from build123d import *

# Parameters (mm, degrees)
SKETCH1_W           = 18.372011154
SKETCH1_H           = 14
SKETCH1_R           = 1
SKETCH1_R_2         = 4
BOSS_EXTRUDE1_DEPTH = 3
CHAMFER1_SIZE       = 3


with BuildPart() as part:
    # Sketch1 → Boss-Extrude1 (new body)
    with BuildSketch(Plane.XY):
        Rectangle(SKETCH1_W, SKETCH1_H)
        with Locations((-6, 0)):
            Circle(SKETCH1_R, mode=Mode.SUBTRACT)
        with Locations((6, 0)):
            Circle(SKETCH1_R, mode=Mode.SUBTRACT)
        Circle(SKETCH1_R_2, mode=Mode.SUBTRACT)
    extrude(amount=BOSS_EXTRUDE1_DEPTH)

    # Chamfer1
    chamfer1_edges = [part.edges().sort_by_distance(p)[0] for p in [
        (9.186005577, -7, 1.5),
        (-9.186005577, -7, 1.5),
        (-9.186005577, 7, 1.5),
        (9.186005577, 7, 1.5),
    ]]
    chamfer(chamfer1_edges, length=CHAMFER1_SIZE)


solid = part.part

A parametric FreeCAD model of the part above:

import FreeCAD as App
import Part
import Sketcher

V = App.Vector
Q = App.Units.Quantity


def edges_at(feature, points):
    """Names of the edges that pass closest to the given points."""
    edges = feature.Shape.Edges
    near = lambda p: min(range(len(edges)), key=lambda i: edges[i].distToShape(Part.Vertex(*p))[0])
    return sorted({f"Edge{near(p) + 1}" for p in points})


def add_polygon(sketch, points):
    """Adds a closed chain of lines whose ends are joined by coincident constraints."""
    first, n = sketch.GeometryCount, len(points)
    for a, b in zip(points, points[1:] + points[:1]):
        sketch.addGeometry(Part.LineSegment(App.Vector(*a, 0), App.Vector(*b, 0)), False)
    for i in range(n):
        sketch.addConstraint(Sketcher.Constraint("Coincident", first + i, 2, first + (i + 1) % n, 1))

doc = App.newDocument("Part")
body = doc.addObject("PartDesign::Body", "Body")

sketch1 = body.newObject("Sketcher::SketchObject", "Sketch")
sketch1.AttachmentSupport = (doc.getObject("XY_Plane"), [""])
sketch1.MapMode = "FlatFace"
add_polygon(sketch1, [(-9.2, 7), (-9.2, -7), (9.2, -7), (9.2, 7)])
sketch1.addGeometry(Part.Circle(V(-6, 0, 0), V(0, 0, 1), 1), False)
sketch1.addGeometry(Part.Circle(V(0, 0, 0), V(0, 0, 1), 4), False)
sketch1.addGeometry(Part.Circle(V(6, 0, 0), V(0, 0, 1), 1), False)
sketch1.addConstraint([
    Sketcher.Constraint("Vertical", 0),
    Sketcher.Constraint("Horizontal", 1),
    Sketcher.Constraint("Vertical", 2),
    Sketcher.Constraint("Horizontal", 3),
    Sketcher.Constraint("Coincident", 5, 3, -1, 1),
    Sketcher.Constraint("Equal", 4, 6),
    Sketcher.Constraint("Symmetric", 4, 3, 6, 3, -1, 1),
    Sketcher.Constraint("Symmetric", 0, 2, 2, 2, -1, 1),
    Sketcher.Constraint("PointOnObject", 4, 3, -1),
    Sketcher.Constraint("Diameter", 4, Q("2 mm")),
    Sketcher.Constraint("Diameter", 5, Q("8 mm")),
    Sketcher.Constraint("DistanceY", 0, 2, 0, 1, Q("14 mm")),
    Sketcher.Constraint("DistanceX", 4, 3, -1, 1, Q("6 mm")),
    Sketcher.Constraint("DistanceX", 1, 1, 1, 2, Q("18.372011 mm")),
])
pad1 = body.newObject("PartDesign::Pad", "Pad")
pad1.Profile = sketch1
pad1.Length = 3
doc.recompute()

chamfer = body.newObject("PartDesign::Chamfer", "Chamfer")
chamfer.Base = (pad1, edges_at(pad1, [
    (9.186, -7, 1.5),
    (-9.186, -7, 1.5),
    (-9.186, 7, 1.5),
    (9.186, 7, 1.5),
]))
chamfer.Size = 3

doc.recompute()
